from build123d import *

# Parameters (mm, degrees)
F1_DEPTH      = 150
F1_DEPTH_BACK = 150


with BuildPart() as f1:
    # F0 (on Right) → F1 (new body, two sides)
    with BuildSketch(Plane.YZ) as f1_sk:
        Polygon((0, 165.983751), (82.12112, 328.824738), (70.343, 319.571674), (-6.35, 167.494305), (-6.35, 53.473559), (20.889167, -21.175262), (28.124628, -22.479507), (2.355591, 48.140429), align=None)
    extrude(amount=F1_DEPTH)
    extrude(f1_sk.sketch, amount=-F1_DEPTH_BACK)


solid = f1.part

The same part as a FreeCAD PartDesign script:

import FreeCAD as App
import Part
import Sketcher
from FreeCAD import Vector
Q = App.Units.Quantity

doc = App.newDocument("Part")
body = doc.addObject("PartDesign::Body", "Body")

sketch1 = doc.addObject("Sketcher::SketchObject", "Sketch")
body.addObject(sketch1)
sketch1.AttachmentSupport = (doc.YZ_Plane, [""])
sketch1.MapMode = "FlatFace"
sketch1.addGeometry(Part.LineSegment(Vector(0, 166, 0), Vector(82, 329, 0)), False)
sketch1.addGeometry(Part.LineSegment(Vector(82, 329, 0), Vector(70, 320, 0)), False)
sketch1.addGeometry(Part.LineSegment(Vector(70, 320, 0), Vector(-6, 167, 0)), False)
sketch1.addGeometry(Part.LineSegment(Vector(-6, 167, 0), Vector(-6, 53, 0)), False)
sketch1.addGeometry(Part.LineSegment(Vector(-6, 53, 0), Vector(21, -21, 0)), False)
sketch1.addGeometry(Part.LineSegment(Vector(21, -21, 0), Vector(28, -22, 0)), False)
sketch1.addGeometry(Part.LineSegment(Vector(28, -22, 0), Vector(2, 48, 0)), False)
sketch1.addGeometry(Part.LineSegment(Vector(2, 48, 0), Vector(0, 166, 0)), False)
sketch1.addConstraint(Sketcher.Constraint("Coincident", 0, 2, 1, 1))
sketch1.addConstraint(Sketcher.Constraint("Coincident", 1, 2, 2, 1))
sketch1.addConstraint(Sketcher.Constraint("Coincident", 2, 2, 3, 1))
sketch1.addConstraint(Sketcher.Constraint("Coincident", 3, 2, 4, 1))
sketch1.addConstraint(Sketcher.Constraint("Coincident", 4, 2, 5, 1))
sketch1.addConstraint(Sketcher.Constraint("Coincident", 5, 2, 6, 1))
sketch1.addConstraint(Sketcher.Constraint("Coincident", 6, 2, 7, 1))
sketch1.addConstraint(Sketcher.Constraint("Coincident", 7, 2, 0, 1))
sketch1.addConstraint(Sketcher.Constraint("Vertical", 3))
sketch1.addConstraint(Sketcher.Constraint("PointOnObject", 7, 2, -2))
sketch1.addConstraint(Sketcher.Constraint("Parallel", 0, 2))
sketch1.addConstraint(Sketcher.Constraint("Parallel", 4, 6))
sketch1.addConstraint(Sketcher.Constraint("DistanceY", 4, 2, 0, 2, Q("350 mm")))
sketch1.addConstraint(Sketcher.Constraint("DistanceX", 2, 2, -1, 1, Q("6.35 mm")))
sketch1.addConstraint(Sketcher.Constraint("DistanceX", -1, 1, 1, 2, Q("70.343 mm")))
sketch1.addConstraint(Sketcher.Constraint("Distance", 2, Q("170.321292 mm")))
sketch1.addConstraint(Sketcher.Constraint("Distance", 5, Q("7.352071 mm")))
sketch1.addConstraint(Sketcher.Constraint("DistanceY", 3, 2, 3, 1, Q("114.020746 mm")))
sketch1.addConstraint(Sketcher.Constraint("DistanceX", -1, 1, 0, 2, Q("82.12112 mm")))
sketch1.addConstraint(Sketcher.Constraint("DistanceY", -1, 1, 0, 2, Q("328.824738 mm")))
sketch1.addConstraint(Sketcher.Constraint("DistanceY", -1, 1, 3, 2, Q("53.473559 mm")))
sketch1.addConstraint(Sketcher.Constraint("DistanceX", -1, 1, 5, 2, Q("28.124628 mm")))
sketch1.addConstraint(Sketcher.Constraint("DistanceX", -1, 1, 6, 2, Q("2.355591 mm")))
sketch1.addConstraint(Sketcher.Constraint("DistanceY", -1, 1, 6, 2, Q("48.140429 mm")))
pad1 = doc.addObject("PartDesign::Pad", "Pad")
body.addObject(pad1)
pad1.Profile = sketch1
pad1.Type = "TwoLengths"
pad1.Length = 150
pad1.Length2 = 150

doc.recompute()
